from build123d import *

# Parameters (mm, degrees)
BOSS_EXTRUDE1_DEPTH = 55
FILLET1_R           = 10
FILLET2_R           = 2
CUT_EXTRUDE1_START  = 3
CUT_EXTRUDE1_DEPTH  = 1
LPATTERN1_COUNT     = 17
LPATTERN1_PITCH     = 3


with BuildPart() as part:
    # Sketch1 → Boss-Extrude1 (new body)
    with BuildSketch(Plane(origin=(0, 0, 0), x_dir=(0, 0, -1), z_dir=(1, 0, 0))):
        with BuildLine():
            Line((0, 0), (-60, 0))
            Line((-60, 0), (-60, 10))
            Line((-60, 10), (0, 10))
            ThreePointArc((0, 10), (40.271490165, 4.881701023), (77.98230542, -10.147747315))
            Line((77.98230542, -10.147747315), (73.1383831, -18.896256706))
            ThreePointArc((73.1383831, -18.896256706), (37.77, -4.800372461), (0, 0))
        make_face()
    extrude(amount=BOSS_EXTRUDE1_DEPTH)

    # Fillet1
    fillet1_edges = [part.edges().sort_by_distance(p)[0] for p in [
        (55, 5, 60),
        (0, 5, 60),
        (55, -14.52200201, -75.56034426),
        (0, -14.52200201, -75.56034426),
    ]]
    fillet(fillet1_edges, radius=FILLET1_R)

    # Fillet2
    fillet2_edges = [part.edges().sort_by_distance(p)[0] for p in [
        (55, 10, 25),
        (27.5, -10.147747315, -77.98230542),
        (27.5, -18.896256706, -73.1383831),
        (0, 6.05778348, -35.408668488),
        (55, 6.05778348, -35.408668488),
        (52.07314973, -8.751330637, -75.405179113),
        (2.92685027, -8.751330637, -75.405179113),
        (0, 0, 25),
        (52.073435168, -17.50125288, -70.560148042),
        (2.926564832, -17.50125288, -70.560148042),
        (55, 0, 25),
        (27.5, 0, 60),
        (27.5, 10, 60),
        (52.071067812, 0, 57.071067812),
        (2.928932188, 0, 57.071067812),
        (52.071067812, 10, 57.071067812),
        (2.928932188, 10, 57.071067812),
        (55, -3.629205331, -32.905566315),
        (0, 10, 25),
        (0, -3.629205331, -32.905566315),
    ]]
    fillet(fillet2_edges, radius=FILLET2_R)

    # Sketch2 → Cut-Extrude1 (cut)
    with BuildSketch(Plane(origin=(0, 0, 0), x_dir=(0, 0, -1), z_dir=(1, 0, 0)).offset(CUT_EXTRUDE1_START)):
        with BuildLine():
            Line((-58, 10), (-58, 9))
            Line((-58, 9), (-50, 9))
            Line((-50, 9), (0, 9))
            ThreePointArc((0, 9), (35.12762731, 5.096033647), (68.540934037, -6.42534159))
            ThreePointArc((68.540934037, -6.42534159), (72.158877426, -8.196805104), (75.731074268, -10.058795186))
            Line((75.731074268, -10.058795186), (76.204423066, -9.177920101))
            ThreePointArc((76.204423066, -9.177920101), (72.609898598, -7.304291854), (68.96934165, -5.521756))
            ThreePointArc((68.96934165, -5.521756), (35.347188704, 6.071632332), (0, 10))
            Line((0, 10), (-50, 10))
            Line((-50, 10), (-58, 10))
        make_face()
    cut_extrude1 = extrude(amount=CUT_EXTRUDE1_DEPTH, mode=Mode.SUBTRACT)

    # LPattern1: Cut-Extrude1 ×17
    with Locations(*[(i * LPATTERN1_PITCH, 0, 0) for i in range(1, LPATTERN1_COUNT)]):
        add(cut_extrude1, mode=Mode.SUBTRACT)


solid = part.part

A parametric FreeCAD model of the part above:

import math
import FreeCAD as App
import Part
import Sketcher


def edges_at(feature, points):
    """Names of the edges that pass closest to the given points."""
    edges = feature.Shape.Edges
    near = lambda p: min(range(len(edges)), key=lambda i: edges[i].distToShape(Part.Vertex(*p))[0])
    return sorted({f"Edge{near(p) + 1}" for p in points})

doc = App.newDocument("Part")
body = doc.addObject("PartDesign::Body", "Body")

# Sketch on YZ plane
sketch1 = doc.addObject("Sketcher::SketchObject", "Sketch")
body.addObject(sketch1)
sketch1.AttachmentSupport = (doc.YZ_Plane, [""])
sketch1.MapMode = "FlatFace"
sketch1.addGeometry(Part.LineSegment(App.Vector(0, 60, 0), App.Vector(0, 0, 0)), False)
sketch1.addGeometry(Part.ArcOfCircle(Part.Circle(App.Vector(-150.99, 0, 0), App.Vector(0, 0, 1), 150.99), math.radians(-28.972661), math.radians(0)), False)
sketch1.addGeometry(Part.LineSegment(App.Vector(-18.896257, -73.138383, 0), App.Vector(-10.147747, -77.982305, 0)), False)
sketch1.addGeometry(Part.ArcOfCircle(Part.Circle(App.Vector(-150.99, 0, 0), App.Vector(0, 0, 1), 160.99), math.radians(-28.972661), math.radians(0)), False)
sketch1.addGeometry(Part.LineSegment(App.Vector(10, 0, 0), App.Vector(10, 60, 0)), False)
sketch1.addGeometry(Part.LineSegment(App.Vector(10, 60, 0), App.Vector(0, 60, 0)), False)
sketch1.addConstraint(Sketcher.Constraint("Tangent", 0, 2, 1, 2))
sketch1.addConstraint(Sketcher.Constraint("Coincident", 1, 1, 2, 1))
sketch1.addConstraint(Sketcher.Constraint("Coincident", 2, 2, 3, 1))
sketch1.addConstraint(Sketcher.Constraint("Tangent", 3, 2, 4, 1))
sketch1.addConstraint(Sketcher.Constraint("Coincident", 4, 2, 5, 1))
sketch1.addConstraint(Sketcher.Constraint("Coincident", 5, 2, 0, 1))
sketch1.addConstraint(Sketcher.Constraint("Vertical", 0))
sketch1.addConstraint(Sketcher.Constraint("Vertical", 4))
sketch1.addConstraint(Sketcher.Constraint("Horizontal", 5))
sketch1.addConstraint(Sketcher.Constraint("Coincident", 0, 2, -1, 1))
sketch1.addConstraint(Sketcher.Constraint("Coincident", 3, 3, 1, 3))
sketch1.addConstraint(Sketcher.Constraint("DistanceX", 5, 2, 5, 1, 10.0))
sketch1.addConstraint(Sketcher.Constraint("DistanceY", 0, 2, 0, 1, 60.0))
sketch1.addConstraint(Sketcher.Constraint("Radius", 1, 150.99))
sketch1.addConstraint(Sketcher.Constraint("DistanceX", 1, 1, 2, 2, 8.748509))
sketch1.addConstraint(Sketcher.Constraint("DistanceX", 1, 1, -1, 1, 18.896257))
pad1 = doc.addObject("PartDesign::Pad", "Pad")
body.addObject(pad1)
pad1.Profile = sketch1
pad1.Length = 55
doc.recompute()

fillet = doc.addObject("PartDesign::Fillet", "Fillet")
body.addObject(fillet)
fillet.Base = (pad1, edges_at(pad1, [
    (55, 5, 60),
    (0, 5, 60),
    (55, -14.522, -75.56),
    (0, -14.522, -75.56),
]))
fillet.Radius = 10
doc.recompute()

fillet2 = doc.addObject("PartDesign::Fillet", "Fillet001")
body.addObject(fillet2)
fillet2.Base = (fillet, edges_at(fillet, [
    (55, 10, 25),
    (27.5, -10.148, -77.982),
    (27.5, -18.896, -73.138),
    (0, 6.058, -35.409),
    (55, 6.058, -35.409),
    (52.073, -8.751, -75.405),
    (2.927, -8.751, -75.405),
    (0, 0, 25),
    (52.073, -17.501, -70.56),
    (2.927, -17.501, -70.56),
    (55, 0, 25),
    (27.5, 0, 60),
    (27.5, 10, 60),
    (52.071, 0, 57.071),
    (2.929, 0, 57.071),
    (52.071, 10, 57.071),
    (2.929, 10, 57.071),
    (55, -3.629, -32.906),
    (0, 10, 25),
    (0, -3.629, -32.906),
]))
fillet2.Radius = 2

# Sketch on YZ plane
sketch2 = doc.addObject("Sketcher::SketchObject", "Sketch001")
body.addObject(sketch2)
sketch2.AttachmentSupport = (doc.YZ_Plane, [""])
sketch2.MapMode = "FlatFace"
sketch2.AttachmentOffset = App.Placement(App.Vector(0, 0, 3), App.Rotation())
sketch2.addGeometry(Part.LineSegment(App.Vector(10, 58, 0), App.Vector(9, 58, 0)), False)
sketch2.addGeometry(Part.LineSegment(App.Vector(9, 58, 0), App.Vector(9, 0, 0)), False)
sketch2.addGeometry(Part.ArcOfCircle(Part.Circle(App.Vector(-150.99, 0, 0), App.Vector(0, 0, 1), 159.99), math.radians(-25.366546), math.radians(0)), False)
sketch2.addGeometry(Part.ArcOfCircle(Part.Circle(App.Vector(-150.99, 0, 0), App.Vector(0, 0, 1), 159.99), math.radians(-28.251895), math.radians(-25.366546)), False)
sketch2.addGeometry(Part.LineSegment(App.Vector(-10.058795, -75.731074, 0), App.Vector(-9.17792, -76.204423, 0)), False)
sketch2.addGeometry(Part.ArcOfCircle(Part.Circle(App.Vector(-150.990002, 0.000001, 0), App.Vector(0, 0, 1), 160.990003), math.radians(-28.251895), math.radians(-25.366546)), False)
sketch2.addGeometry(Part.ArcOfCircle(Part.Circle(App.Vector(-150.99, 0, 0), App.Vector(0, 0, 1), 160.99), math.radians(-25.366546), math.radians(0)), False)
sketch2.addGeometry(Part.LineSegment(App.Vector(10, 0, 0), App.Vector(10, 58, 0)), False)
sketch2.addConstraint(Sketcher.Constraint("Coincident", 0, 2, 1, 1))
sketch2.addConstraint(Sketcher.Constraint("Tangent", 1, 2, 2, 2))
sketch2.addConstraint(Sketcher.Constraint("Tangent", 2, 1, 3, 2))
sketch2.addConstraint(Sketcher.Constraint("Coincident", 3, 1, 4, 1))
sketch2.addConstraint(Sketcher.Constraint("Coincident", 4, 2, 5, 1))
sketch2.addConstraint(Sketcher.Constraint("Tangent", 5, 2, 6, 1))
sketch2.addConstraint(Sketcher.Constraint("Tangent", 6, 2, 7, 1))
sketch2.addConstraint(Sketcher.Constraint("Coincident", 7, 2, 0, 1))
sketch2.addConstraint(Sketcher.Constraint("Horizontal", 0))
sketch2.addConstraint(Sketcher.Constraint("Vertical", 1))
sketch2.addConstraint(Sketcher.Constraint("Vertical", 7))
sketch2.addConstraint(Sketcher.Constraint("Coincident", 5, 3, 2, 3))
sketch2.addConstraint(Sketcher.Constraint("Equal", 2, 3))
sketch2.addConstraint(Sketcher.Constraint("PointOnObject", 2, 3, -1))
sketch2.addConstraint(Sketcher.Constraint("PointOnObject", 6, 3, -1))
sketch2.addConstraint(Sketcher.Constraint("DistanceX", 0, 2, 0, 1, 1.0))
sketch2.addConstraint(Sketcher.Constraint("DistanceY", 1, 2, 1, 1, 58.0))
sketch2.addConstraint(Sketcher.Constraint("Radius", 2, 159.99))
sketch2.addConstraint(Sketcher.Constraint("DistanceX", -1, 1, 0, 2, 9.0))
sketch2.addConstraint(Sketcher.Constraint("DistanceX", 2, 1, -1, 1, 6.425342))
sketch2.addConstraint(Sketcher.Constraint("DistanceX", 4, 2, -1, 1, 9.17792))
sketch2.addConstraint(Sketcher.Constraint("DistanceY", 5, 2, -1, 1, 68.969342))
sketch2.addConstraint(Sketcher.Constraint("DistanceY", 3, 1, 2, 1, 7.19014))
pocket1 = doc.addObject("PartDesign::Pocket", "Pocket")
body.addObject(pocket1)
pocket1.Profile = sketch2
pocket1.Length = 1
pocket1.Reversed = True
doc.recompute()

linearpattern = doc.addObject("PartDesign::LinearPattern", "LinearPattern")
body.addObject(linearpattern)
linearpattern.Originals = [pocket1]
linearpattern.Direction = (doc.X_Axis, [""])
linearpattern.Mode = "offset"
linearpattern.Offset = 3
linearpattern.Occurrences = 17
body.Tip = linearpattern

doc.recompute()
